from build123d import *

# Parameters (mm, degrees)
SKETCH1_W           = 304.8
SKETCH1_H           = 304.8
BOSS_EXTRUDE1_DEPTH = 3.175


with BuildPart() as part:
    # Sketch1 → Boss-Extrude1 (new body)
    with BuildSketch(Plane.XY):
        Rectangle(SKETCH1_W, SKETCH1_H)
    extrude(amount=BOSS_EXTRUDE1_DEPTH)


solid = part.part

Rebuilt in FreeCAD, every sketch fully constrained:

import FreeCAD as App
import Part
import Sketcher
Q = App.Units.Quantity

doc = App.newDocument("Part")
params = doc.addObject("Spreadsheet::Sheet", "Params")
for row, (alias, value) in enumerate([
    ("sketch1_width", "12 in"),
    ("pad1_length", "0.125 in"),
], start=1):
    params.set(f"A{row}", alias)
    params.set(f"B{row}", "=" + value)
    params.setAlias(f"B{row}", alias)

body = doc.addObject("PartDesign::Body", "Body")

sketch1 = body.newObject("Sketcher::SketchObject", "Sketch")
sketch1.AttachmentSupport = (doc.getObject("XY_Plane"), [""])
sketch1.MapMode = "FlatFace"
sketch1.addGeometry([
    Part.LineSegment(App.Vector(-152, 152, 0), App.Vector(-152, -152, 0)),
    Part.LineSegment(App.Vector(-152, -152, 0), App.Vector(152, -152, 0)),
    Part.LineSegment(App.Vector(152, -152, 0), App.Vector(152, 152, 0)),
    Part.LineSegment(App.Vector(152, 152, 0), App.Vector(-152, 152, 0)),
], False)
sketch1.addConstraint([
    Sketcher.Constraint("Coincident", 0, 2, 1, 1),
    Sketcher.Constraint("Coincident", 1, 2, 2, 1),
    Sketcher.Constraint("Coincident", 2, 2, 3, 1),
    Sketcher.Constraint("Coincident", 3, 2, 0, 1),
    Sketcher.Constraint("Vertical", 0),
    Sketcher.Constraint("Horizontal", 1),
    Sketcher.Constraint("Vertical", 2),
    Sketcher.Constraint("Horizontal", 3),
    Sketcher.Constraint("Symmetric", 0, 2, 2, 2, -1, 1),
    Sketcher.Constraint("Equal", 3, 0),
    Sketcher.Constraint("DistanceX", 1, 1, 1, 2, Q("12 in")),
])
sketch1.setExpression("Constraints[10]", "Params.sketch1_width")
pad1 = body.newObject("PartDesign::Pad", "Pad")
pad1.Profile = sketch1
pad1.setExpression("Length", "Params.pad1_length")

doc.recompute()
